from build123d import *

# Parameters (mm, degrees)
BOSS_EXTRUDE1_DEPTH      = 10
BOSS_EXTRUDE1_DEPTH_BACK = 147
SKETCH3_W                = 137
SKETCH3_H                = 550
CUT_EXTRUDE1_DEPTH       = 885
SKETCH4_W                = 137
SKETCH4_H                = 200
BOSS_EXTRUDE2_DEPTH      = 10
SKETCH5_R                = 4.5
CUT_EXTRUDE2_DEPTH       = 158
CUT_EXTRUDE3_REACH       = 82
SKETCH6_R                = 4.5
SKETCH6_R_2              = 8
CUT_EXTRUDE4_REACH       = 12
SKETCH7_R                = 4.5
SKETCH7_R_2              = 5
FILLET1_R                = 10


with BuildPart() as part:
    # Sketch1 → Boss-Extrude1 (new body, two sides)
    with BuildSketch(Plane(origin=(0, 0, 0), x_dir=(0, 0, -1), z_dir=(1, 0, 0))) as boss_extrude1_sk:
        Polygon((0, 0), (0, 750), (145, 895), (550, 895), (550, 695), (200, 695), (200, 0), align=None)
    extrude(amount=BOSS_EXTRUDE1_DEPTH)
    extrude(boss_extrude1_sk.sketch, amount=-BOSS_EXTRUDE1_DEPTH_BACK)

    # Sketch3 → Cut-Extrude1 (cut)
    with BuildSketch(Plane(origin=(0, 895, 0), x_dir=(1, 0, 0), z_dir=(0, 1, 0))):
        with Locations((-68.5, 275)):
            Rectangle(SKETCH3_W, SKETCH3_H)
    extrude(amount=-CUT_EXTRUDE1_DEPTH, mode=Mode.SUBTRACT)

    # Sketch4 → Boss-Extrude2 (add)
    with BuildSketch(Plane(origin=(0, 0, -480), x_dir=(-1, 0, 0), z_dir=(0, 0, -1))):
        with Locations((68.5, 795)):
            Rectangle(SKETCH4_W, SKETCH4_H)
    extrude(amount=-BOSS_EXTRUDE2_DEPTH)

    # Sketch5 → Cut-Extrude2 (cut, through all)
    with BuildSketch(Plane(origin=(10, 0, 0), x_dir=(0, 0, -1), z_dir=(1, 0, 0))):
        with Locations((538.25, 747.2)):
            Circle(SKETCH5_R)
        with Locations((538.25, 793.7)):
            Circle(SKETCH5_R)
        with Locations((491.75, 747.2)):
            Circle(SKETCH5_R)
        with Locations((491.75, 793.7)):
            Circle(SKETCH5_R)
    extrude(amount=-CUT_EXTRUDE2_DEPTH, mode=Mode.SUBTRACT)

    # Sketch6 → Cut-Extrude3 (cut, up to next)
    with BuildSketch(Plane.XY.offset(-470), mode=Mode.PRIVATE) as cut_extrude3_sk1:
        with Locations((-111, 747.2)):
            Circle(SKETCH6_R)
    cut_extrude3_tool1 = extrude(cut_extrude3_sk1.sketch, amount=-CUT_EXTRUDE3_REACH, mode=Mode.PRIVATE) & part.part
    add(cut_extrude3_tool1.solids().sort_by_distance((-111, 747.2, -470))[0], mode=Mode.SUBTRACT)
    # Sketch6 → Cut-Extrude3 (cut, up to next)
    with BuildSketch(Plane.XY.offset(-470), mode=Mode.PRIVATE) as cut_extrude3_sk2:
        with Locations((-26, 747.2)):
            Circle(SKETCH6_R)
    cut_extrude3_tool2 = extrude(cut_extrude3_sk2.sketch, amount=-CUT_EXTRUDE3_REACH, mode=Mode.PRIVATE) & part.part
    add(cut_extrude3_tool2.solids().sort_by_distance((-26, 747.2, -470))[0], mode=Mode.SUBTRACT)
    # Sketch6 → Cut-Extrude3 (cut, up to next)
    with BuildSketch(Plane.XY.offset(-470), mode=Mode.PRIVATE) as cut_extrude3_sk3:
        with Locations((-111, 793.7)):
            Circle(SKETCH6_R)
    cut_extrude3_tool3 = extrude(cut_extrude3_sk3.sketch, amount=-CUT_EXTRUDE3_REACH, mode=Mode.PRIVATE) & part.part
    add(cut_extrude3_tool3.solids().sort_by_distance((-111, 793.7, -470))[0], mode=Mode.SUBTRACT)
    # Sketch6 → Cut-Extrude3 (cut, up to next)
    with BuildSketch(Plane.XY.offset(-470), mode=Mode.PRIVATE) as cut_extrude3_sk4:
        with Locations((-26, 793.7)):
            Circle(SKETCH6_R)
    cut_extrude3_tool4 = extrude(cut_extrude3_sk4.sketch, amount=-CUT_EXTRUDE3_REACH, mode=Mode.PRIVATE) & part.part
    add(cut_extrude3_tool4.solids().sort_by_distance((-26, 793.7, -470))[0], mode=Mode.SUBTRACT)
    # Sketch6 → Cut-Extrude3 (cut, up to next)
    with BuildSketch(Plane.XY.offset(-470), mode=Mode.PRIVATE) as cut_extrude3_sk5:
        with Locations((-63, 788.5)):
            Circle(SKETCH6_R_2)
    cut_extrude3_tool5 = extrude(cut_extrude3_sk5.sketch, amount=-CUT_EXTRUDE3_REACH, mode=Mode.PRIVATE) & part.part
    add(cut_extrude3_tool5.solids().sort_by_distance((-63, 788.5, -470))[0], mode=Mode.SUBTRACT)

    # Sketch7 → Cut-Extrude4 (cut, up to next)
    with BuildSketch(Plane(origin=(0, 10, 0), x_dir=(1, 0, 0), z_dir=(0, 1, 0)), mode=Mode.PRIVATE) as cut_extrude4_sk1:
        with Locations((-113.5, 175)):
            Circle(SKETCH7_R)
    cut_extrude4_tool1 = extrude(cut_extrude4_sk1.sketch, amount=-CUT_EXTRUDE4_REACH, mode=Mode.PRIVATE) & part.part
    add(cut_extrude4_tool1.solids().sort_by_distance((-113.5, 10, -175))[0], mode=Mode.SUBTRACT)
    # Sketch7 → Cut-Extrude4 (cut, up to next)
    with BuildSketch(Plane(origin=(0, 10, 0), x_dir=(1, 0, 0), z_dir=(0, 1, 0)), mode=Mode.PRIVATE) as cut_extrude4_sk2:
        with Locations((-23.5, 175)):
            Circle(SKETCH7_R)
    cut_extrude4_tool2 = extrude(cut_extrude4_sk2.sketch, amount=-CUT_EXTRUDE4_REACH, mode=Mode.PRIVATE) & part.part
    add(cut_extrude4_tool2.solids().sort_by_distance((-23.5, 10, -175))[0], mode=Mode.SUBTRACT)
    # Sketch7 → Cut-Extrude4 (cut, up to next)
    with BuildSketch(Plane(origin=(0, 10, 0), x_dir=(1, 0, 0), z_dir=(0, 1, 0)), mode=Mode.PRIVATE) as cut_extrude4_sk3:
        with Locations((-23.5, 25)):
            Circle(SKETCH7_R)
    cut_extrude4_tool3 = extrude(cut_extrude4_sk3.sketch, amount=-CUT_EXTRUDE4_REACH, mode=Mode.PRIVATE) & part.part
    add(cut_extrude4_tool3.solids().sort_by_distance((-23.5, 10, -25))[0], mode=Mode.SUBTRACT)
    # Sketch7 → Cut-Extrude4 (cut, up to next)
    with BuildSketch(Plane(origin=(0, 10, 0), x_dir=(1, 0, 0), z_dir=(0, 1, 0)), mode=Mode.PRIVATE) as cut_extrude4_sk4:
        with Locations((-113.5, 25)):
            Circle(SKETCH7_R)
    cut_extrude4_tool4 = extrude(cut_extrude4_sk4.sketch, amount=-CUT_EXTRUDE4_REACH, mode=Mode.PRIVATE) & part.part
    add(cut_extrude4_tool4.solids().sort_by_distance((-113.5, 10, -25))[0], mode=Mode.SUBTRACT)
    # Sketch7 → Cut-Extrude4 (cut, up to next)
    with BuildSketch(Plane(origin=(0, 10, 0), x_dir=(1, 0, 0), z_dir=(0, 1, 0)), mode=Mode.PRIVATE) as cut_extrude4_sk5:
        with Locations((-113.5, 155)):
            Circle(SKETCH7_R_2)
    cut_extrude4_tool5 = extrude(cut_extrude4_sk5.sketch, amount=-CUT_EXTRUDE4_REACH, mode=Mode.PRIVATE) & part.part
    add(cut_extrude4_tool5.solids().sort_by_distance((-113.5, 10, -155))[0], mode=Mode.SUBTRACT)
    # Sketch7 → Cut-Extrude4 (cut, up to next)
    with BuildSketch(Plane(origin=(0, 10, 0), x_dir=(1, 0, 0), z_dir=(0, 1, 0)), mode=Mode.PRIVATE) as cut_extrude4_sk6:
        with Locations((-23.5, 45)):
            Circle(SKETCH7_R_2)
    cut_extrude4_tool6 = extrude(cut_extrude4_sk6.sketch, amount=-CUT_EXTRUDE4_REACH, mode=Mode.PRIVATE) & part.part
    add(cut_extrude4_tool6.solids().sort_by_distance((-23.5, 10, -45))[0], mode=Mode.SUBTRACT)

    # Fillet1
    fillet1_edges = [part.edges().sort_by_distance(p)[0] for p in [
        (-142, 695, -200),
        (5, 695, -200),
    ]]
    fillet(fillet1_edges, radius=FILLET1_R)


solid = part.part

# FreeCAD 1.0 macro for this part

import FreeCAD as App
import Part
import Sketcher
from FreeCAD import Vector
Q = App.Units.Quantity


def edges_at(feature, points):
    """Names of the edges that pass closest to the given points."""
    edges = feature.Shape.Edges
    near = lambda p: min(range(len(edges)), key=lambda i: edges[i].distToShape(Part.Vertex(*p))[0])
    return sorted({f"Edge{near(p) + 1}" for p in points})

doc = App.newDocument("Part")
body = doc.addObject("PartDesign::Body", "Body")

# Sketch on YZ plane
sketch1 = body.newObject("Sketcher::SketchObject", "Sketch")
sketch1.AttachmentSupport = (doc.getObject("YZ_Plane"), [""])
sketch1.MapMode = "FlatFace"
sketch1.addGeometry(Part.LineSegment(Vector(750, 0, 0), Vector(0, 0, 0)), False)
sketch1.addGeometry(Part.LineSegment(Vector(0, 0, 0), Vector(0, -200, 0)), False)
sketch1.addGeometry(Part.LineSegment(Vector(0, -200, 0), Vector(695, -200, 0)), False)
sketch1.addGeometry(Part.LineSegment(Vector(695, -200, 0), Vector(695, -550, 0)), False)
sketch1.addGeometry(Part.LineSegment(Vector(695, -550, 0), Vector(895, -550, 0)), False)
sketch1.addGeometry(Part.LineSegment(Vector(895, -550, 0), Vector(895, -145, 0)), False)
sketch1.addGeometry(Part.LineSegment(Vector(895, -145, 0), Vector(750, 0, 0)), False)
sketch1.addConstraint(Sketcher.Constraint("Coincident", 0, 2, 1, 1))
sketch1.addConstraint(Sketcher.Constraint("Coincident", 1, 2, 2, 1))
sketch1.addConstraint(Sketcher.Constraint("Coincident", 2, 2, 3, 1))
sketch1.addConstraint(Sketcher.Constraint("Coincident", 3, 2, 4, 1))
sketch1.addConstraint(Sketcher.Constraint("Coincident", 4, 2, 5, 1))
sketch1.addConstraint(Sketcher.Constraint("Coincident", 5, 2, 6, 1))
sketch1.addConstraint(Sketcher.Constraint("Coincident", 6, 2, 0, 1))
sketch1.addConstraint(Sketcher.Constraint("Horizontal", 0))
sketch1.addConstraint(Sketcher.Constraint("Vertical", 1))
sketch1.addConstraint(Sketcher.Constraint("Horizontal", 2))
sketch1.addConstraint(Sketcher.Constraint("Vertical", 3))
sketch1.addConstraint(Sketcher.Constraint("Horizontal", 4))
sketch1.addConstraint(Sketcher.Constraint("Vertical", 5))
sketch1.addConstraint(Sketcher.Constraint("Coincident", 0, 2, -1, 1))
sketch1.addConstraint(Sketcher.Constraint("Equal", 4, 1))
sketch1.addConstraint(Sketcher.Constraint("DistanceX", 0, 2, 0, 1, Q("750 mm")))
sketch1.addConstraint(Sketcher.Constraint("DistanceX", 2, 1, 2, 2, Q("695 mm")))
sketch1.addConstraint(Sketcher.Constraint("DistanceX", 4, 1, 4, 2, Q("200 mm")))
sketch1.addConstraint(Sketcher.Constraint("DistanceY", 3, 2, 3, 1, Q("350 mm")))
sketch1.addConstraint(Sketcher.Constraint("DistanceY", 5, 1, 5, 2, Q("405 mm")))
pad1 = body.newObject("PartDesign::Pad", "Pad")
pad1.Profile = sketch1
pad1.Type = "TwoLengths"
pad1.Length = 10
pad1.Length2 = 147

# Sketch on XZ plane
sketch2 = body.newObject("Sketcher::SketchObject", "Sketch001")
sketch2.AttachmentSupport = (doc.getObject("XZ_Plane"), [""])
sketch2.MapMode = "FlatFace"
sketch2.AttachmentOffset = App.Placement(Vector(0, 0, -895), App.Rotation())
sketch2.addGeometry(Part.LineSegment(Vector(-137, -550, 0), Vector(-137, 0, 0)), False)
sketch2.addGeometry(Part.LineSegment(Vector(-137, 0, 0), Vector(0, 0, 0)), False)
sketch2.addGeometry(Part.LineSegment(Vector(0, 0, 0), Vector(0, -550, 0)), False)
sketch2.addGeometry(Part.LineSegment(Vector(0, -550, 0), Vector(-137, -550, 0)), False)
sketch2.addConstraint(Sketcher.Constraint("Coincident", 0, 2, 1, 1))
sketch2.addConstraint(Sketcher.Constraint("Coincident", 1, 2, 2, 1))
sketch2.addConstraint(Sketcher.Constraint("Coincident", 2, 2, 3, 1))
sketch2.addConstraint(Sketcher.Constraint("Coincident", 3, 2, 0, 1))
sketch2.addConstraint(Sketcher.Constraint("Vertical", 0))
sketch2.addConstraint(Sketcher.Constraint("Horizontal", 1))
sketch2.addConstraint(Sketcher.Constraint("Vertical", 2))
sketch2.addConstraint(Sketcher.Constraint("Horizontal", 3))
sketch2.addConstraint(Sketcher.Constraint("Coincident", 1, 2, -1, 1))
sketch2.addConstraint(Sketcher.Constraint("DistanceX", 1, 1, 1, 2, Q("137 mm")))
sketch2.addConstraint(Sketcher.Constraint("DistanceY", 0, 1, 0, 2, Q("550 mm")))
pocket1 = body.newObject("PartDesign::Pocket", "Pocket")
pocket1.Profile = sketch2
pocket1.Length = 885
pocket1.Reversed = True

# Sketch on XY plane
sketch3 = body.newObject("Sketcher::SketchObject", "Sketch002")
sketch3.AttachmentSupport = (doc.getObject("XY_Plane"), [""])
sketch3.MapMode = "FlatFace"
sketch3.AttachmentOffset = App.Placement(Vector(0, 0, -480), App.Rotation())
sketch3.addGeometry(Part.LineSegment(Vector(0, 895, 0), Vector(0, 695, 0)), False)
sketch3.addGeometry(Part.LineSegment(Vector(0, 695, 0), Vector(-137, 695, 0)), False)
sketch3.addGeometry(Part.LineSegment(Vector(-137, 695, 0), Vector(-137, 895, 0)), False)
sketch3.addGeometry(Part.LineSegment(Vector(-137, 895, 0), Vector(0, 895, 0)), False)
sketch3.addConstraint(Sketcher.Constraint("Coincident", 0, 2, 1, 1))
sketch3.addConstraint(Sketcher.Constraint("Coincident", 1, 2, 2, 1))
sketch3.addConstraint(Sketcher.Constraint("Coincident", 2, 2, 3, 1))
sketch3.addConstraint(Sketcher.Constraint("Coincident", 3, 2, 0, 1))
sketch3.addConstraint(Sketcher.Constraint("Vertical", 0))
sketch3.addConstraint(Sketcher.Constraint("Horizontal", 1))
sketch3.addConstraint(Sketcher.Constraint("Vertical", 2))
sketch3.addConstraint(Sketcher.Constraint("Horizontal", 3))
sketch3.addConstraint(Sketcher.Constraint("PointOnObject", 0, 2, -2))
sketch3.addConstraint(Sketcher.Constraint("DistanceX", 1, 2, 1, 1, Q("137 mm")))
sketch3.addConstraint(Sketcher.Constraint("DistanceY", 0, 2, 0, 1, Q("200 mm")))
sketch3.addConstraint(Sketcher.Constraint("DistanceY", -1, 1, 0, 2, Q("695 mm")))
pad2 = body.newObject("PartDesign::Pad", "Pad001")
pad2.Profile = sketch3
pad2.Length = 10

# Sketch on YZ plane
sketch4 = body.newObject("Sketcher::SketchObject", "Sketch003")
sketch4.AttachmentSupport = (doc.getObject("YZ_Plane"), [""])
sketch4.MapMode = "FlatFace"
sketch4.AttachmentOffset = App.Placement(Vector(0, 0, 10), App.Rotation())
sketch4.addGeometry(Part.Circle(Vector(747.2, -538.2, 0), Vector(0, 0, 1), 4.5), False)
sketch4.addGeometry(Part.Circle(Vector(793.7, -538.2, 0), Vector(0, 0, 1), 4.5), False)
sketch4.addGeometry(Part.Circle(Vector(747.2, -491.8, 0), Vector(0, 0, 1), 4.5), False)
sketch4.addGeometry(Part.Circle(Vector(793.7, -491.8, 0), Vector(0, 0, 1), 4.5), False)
sketch4.addConstraint(Sketcher.Constraint("Equal", 0, 1))
sketch4.addConstraint(Sketcher.Constraint("Equal", 1, 2))
sketch4.addConstraint(Sketcher.Constraint("Equal", 2, 3))
sketch4.addConstraint(Sketcher.Constraint("Horizontal", 0, 3, 1, 3))
sketch4.addConstraint(Sketcher.Constraint("Horizontal", 2, 3, 3, 3))
sketch4.addConstraint(Sketcher.Constraint("Vertical", 0, 3, 2, 3))
sketch4.addConstraint(Sketcher.Constraint("Vertical", 1, 3, 3, 3))
sketch4.addConstraint(Sketcher.Constraint("Diameter", 0, Q("9 mm")))
sketch4.addConstraint(Sketcher.Constraint("DistanceX", -1, 1, 0, 3, Q("747.2 mm")))
sketch4.addConstraint(Sketcher.Constraint("DistanceX", -1, 1, 1, 3, Q("793.7 mm")))
sketch4.addConstraint(Sketcher.Constraint("DistanceY", 0, 3, 2, 3, Q("46.5 mm")))
sketch4.addConstraint(Sketcher.Constraint("DistanceY", 0, 3, -1, 1, Q("538.25 mm")))
pocket2 = body.newObject("PartDesign::Pocket", "Pocket001")
pocket2.Profile = sketch4
pocket2.Type = "ThroughAll"

# Sketch on XY plane
sketch5 = body.newObject("Sketcher::SketchObject", "Sketch004")
sketch5.AttachmentSupport = (doc.getObject("XY_Plane"), [""])
sketch5.MapMode = "FlatFace"
sketch5.AttachmentOffset = App.Placement(Vector(0, 0, -470), App.Rotation())
sketch5.addGeometry(Part.Circle(Vector(-111, 747.2, 0), Vector(0, 0, 1), 4.5), False)
sketch5.addConstraint(Sketcher.Constraint("Diameter", 0, Q("9 mm")))
sketch5.addConstraint(Sketcher.Constraint("DistanceX", 0, 3, -1, 1, Q("111 mm")))
sketch5.addConstraint(Sketcher.Constraint("DistanceY", -1, 1, 0, 3, Q("747.2 mm")))
pocket3 = body.newObject("PartDesign::Pocket", "Pocket002")
pocket3.Profile = sketch5
pocket3.Type = "UpToFirst"

# Sketch on XY plane
sketch6 = body.newObject("Sketcher::SketchObject", "Sketch005")
sketch6.AttachmentSupport = (doc.getObject("XY_Plane"), [""])
sketch6.MapMode = "FlatFace"
sketch6.AttachmentOffset = App.Placement(Vector(0, 0, -470), App.Rotation())
sketch6.addGeometry(Part.Circle(Vector(-26, 747.2, 0), Vector(0, 0, 1), 4.5), False)
sketch6.addConstraint(Sketcher.Constraint("Diameter", 0, Q("9 mm")))
sketch6.addConstraint(Sketcher.Constraint("DistanceX", 0, 3, -1, 1, Q("26 mm")))
sketch6.addConstraint(Sketcher.Constraint("DistanceY", -1, 1, 0, 3, Q("747.2 mm")))
pocket4 = body.newObject("PartDesign::Pocket", "Pocket003")
pocket4.Profile = sketch6
pocket4.Type = "UpToFirst"

# Sketch on XY plane
sketch7 = body.newObject("Sketcher::SketchObject", "Sketch006")
sketch7.AttachmentSupport = (doc.getObject("XY_Plane"), [""])
sketch7.MapMode = "FlatFace"
sketch7.AttachmentOffset = App.Placement(Vector(0, 0, -470), App.Rotation())
sketch7.addGeometry(Part.Circle(Vector(-111, 793.7, 0), Vector(0, 0, 1), 4.5), False)
sketch7.addConstraint(Sketcher.Constraint("Diameter", 0, Q("9 mm")))
sketch7.addConstraint(Sketcher.Constraint("DistanceX", 0, 3, -1, 1, Q("111 mm")))
sketch7.addConstraint(Sketcher.Constraint("DistanceY", -1, 1, 0, 3, Q("793.7 mm")))
pocket5 = body.newObject("PartDesign::Pocket", "Pocket004")
pocket5.Profile = sketch7
pocket5.Type = "UpToFirst"

# Sketch on XY plane
sketch8 = body.newObject("Sketcher::SketchObject", "Sketch007")
sketch8.AttachmentSupport = (doc.getObject("XY_Plane"), [""])
sketch8.MapMode = "FlatFace"
sketch8.AttachmentOffset = App.Placement(Vector(0, 0, -470), App.Rotation())
sketch8.addGeometry(Part.Circle(Vector(-26, 793.7, 0), Vector(0, 0, 1), 4.5), False)
sketch8.addConstraint(Sketcher.Constraint("Diameter", 0, Q("9 mm")))
sketch8.addConstraint(Sketcher.Constraint("DistanceX", 0, 3, -1, 1, Q("26 mm")))
sketch8.addConstraint(Sketcher.Constraint("DistanceY", -1, 1, 0, 3, Q("793.7 mm")))
pocket6 = body.newObject("PartDesign::Pocket", "Pocket005")
pocket6.Profile = sketch8
pocket6.Type = "UpToFirst"

# Sketch on XY plane
sketch9 = body.newObject("Sketcher::SketchObject", "Sketch008")
sketch9.AttachmentSupport = (doc.getObject("XY_Plane"), [""])
sketch9.MapMode = "FlatFace"
sketch9.AttachmentOffset = App.Placement(Vector(0, 0, -470), App.Rotation())
sketch9.addGeometry(Part.Circle(Vector(-63, 788, 0), Vector(0, 0, 1), 8), False)
sketch9.addConstraint(Sketcher.Constraint("Diameter", 0, Q("16 mm")))
sketch9.addConstraint(Sketcher.Constraint("DistanceX", 0, 3, -1, 1, Q("63 mm")))
sketch9.addConstraint(Sketcher.Constraint("DistanceY", -1, 1, 0, 3, Q("788.5 mm")))
pocket7 = body.newObject("PartDesign::Pocket", "Pocket006")
pocket7.Profile = sketch9
pocket7.Type = "UpToFirst"

# Sketch on XZ plane
sketch10 = body.newObject("Sketcher::SketchObject", "Sketch009")
sketch10.AttachmentSupport = (doc.getObject("XZ_Plane"), [""])
sketch10.MapMode = "FlatFace"
sketch10.AttachmentOffset = App.Placement(Vector(0, 0, -10), App.Rotation())
sketch10.addGeometry(Part.Circle(Vector(-113.5, -175, 0), Vector(0, 0, 1), 4.5), False)
sketch10.addConstraint(Sketcher.Constraint("Diameter", 0, Q("9 mm")))
sketch10.addConstraint(Sketcher.Constraint("DistanceY", 0, 3, -1, 1, Q("175 mm")))
sketch10.addConstraint(Sketcher.Constraint("DistanceX", 0, 3, -1, 1, Q("113.5 mm")))
pocket8 = body.newObject("PartDesign::Pocket", "Pocket007")
pocket8.Profile = sketch10
pocket8.Type = "UpToFirst"
pocket8.Reversed = True

# Sketch on XZ plane
sketch11 = body.newObject("Sketcher::SketchObject", "Sketch010")
sketch11.AttachmentSupport = (doc.getObject("XZ_Plane"), [""])
sketch11.MapMode = "FlatFace"
sketch11.AttachmentOffset = App.Placement(Vector(0, 0, -10), App.Rotation())
sketch11.addGeometry(Part.Circle(Vector(-23.5, -175, 0), Vector(0, 0, 1), 4.5), False)
sketch11.addConstraint(Sketcher.Constraint("Diameter", 0, Q("9 mm")))
sketch11.addConstraint(Sketcher.Constraint("DistanceY", 0, 3, -1, 1, Q("175 mm")))
sketch11.addConstraint(Sketcher.Constraint("DistanceX", 0, 3, -1, 1, Q("23.5 mm")))
pocket9 = body.newObject("PartDesign::Pocket", "Pocket008")
pocket9.Profile = sketch11
pocket9.Type = "UpToFirst"
pocket9.Reversed = True

# Sketch on XZ plane
sketch12 = body.newObject("Sketcher::SketchObject", "Sketch011")
sketch12.AttachmentSupport = (doc.getObject("XZ_Plane"), [""])
sketch12.MapMode = "FlatFace"
sketch12.AttachmentOffset = App.Placement(Vector(0, 0, -10), App.Rotation())
sketch12.addGeometry(Part.Circle(Vector(-23.5, -25, 0), Vector(0, 0, 1), 4.5), False)
sketch12.addConstraint(Sketcher.Constraint("Diameter", 0, Q("9 mm")))
sketch12.addConstraint(Sketcher.Constraint("DistanceY", 0, 3, -1, 1, Q("25 mm")))
sketch12.addConstraint(Sketcher.Constraint("DistanceX", 0, 3, -1, 1, Q("23.5 mm")))
pocket10 = body.newObject("PartDesign::Pocket", "Pocket009")
pocket10.Profile = sketch12
pocket10.Type = "UpToFirst"
pocket10.Reversed = True

# Sketch on XZ plane
sketch13 = body.newObject("Sketcher::SketchObject", "Sketch012")
sketch13.AttachmentSupport = (doc.getObject("XZ_Plane"), [""])
sketch13.MapMode = "FlatFace"
sketch13.AttachmentOffset = App.Placement(Vector(0, 0, -10), App.Rotation())
sketch13.addGeometry(Part.Circle(Vector(-113.5, -25, 0), Vector(0, 0, 1), 4.5), False)
sketch13.addConstraint(Sketcher.Constraint("Diameter", 0, Q("9 mm")))
sketch13.addConstraint(Sketcher.Constraint("DistanceY", 0, 3, -1, 1, Q("25 mm")))
sketch13.addConstraint(Sketcher.Constraint("DistanceX", 0, 3, -1, 1, Q("113.5 mm")))
pocket11 = body.newObject("PartDesign::Pocket", "Pocket010")
pocket11.Profile = sketch13
pocket11.Type = "UpToFirst"
pocket11.Reversed = True

# Sketch on XZ plane
sketch14 = body.newObject("Sketcher::SketchObject", "Sketch013")
sketch14.AttachmentSupport = (doc.getObject("XZ_Plane"), [""])
sketch14.MapMode = "FlatFace"
sketch14.AttachmentOffset = App.Placement(Vector(0, 0, -10), App.Rotation())
sketch14.addGeometry(Part.Circle(Vector(-114, -155, 0), Vector(0, 0, 1), 5), False)
sketch14.addConstraint(Sketcher.Constraint("Diameter", 0, Q("10 mm")))
sketch14.addConstraint(Sketcher.Constraint("DistanceY", 0, 3, -1, 1, Q("155 mm")))
sketch14.addConstraint(Sketcher.Constraint("DistanceX", 0, 3, -1, 1, Q("113.5 mm")))
pocket12 = body.newObject("PartDesign::Pocket", "Pocket011")
pocket12.Profile = sketch14
pocket12.Type = "UpToFirst"
pocket12.Reversed = True

# Sketch on XZ plane
sketch15 = body.newObject("Sketcher::SketchObject", "Sketch014")
sketch15.AttachmentSupport = (doc.getObject("XZ_Plane"), [""])
sketch15.MapMode = "FlatFace"
sketch15.AttachmentOffset = App.Placement(Vector(0, 0, -10), App.Rotation())
sketch15.addGeometry(Part.Circle(Vector(-24, -45, 0), Vector(0, 0, 1), 5), False)
sketch15.addConstraint(Sketcher.Constraint("Diameter", 0, Q("10 mm")))
sketch15.addConstraint(Sketcher.Constraint("DistanceY", 0, 3, -1, 1, Q("45 mm")))
sketch15.addConstraint(Sketcher.Constraint("DistanceX", 0, 3, -1, 1, Q("23.5 mm")))
pocket13 = body.newObject("PartDesign::Pocket", "Pocket012")
pocket13.Profile = sketch15
pocket13.Type = "UpToFirst"
pocket13.Reversed = True
doc.recompute()

fillet = body.newObject("PartDesign::Fillet", "Fillet")
fillet.Base = (pocket13, edges_at(pocket13, [(-142, 695, -200), (5, 695, -200)]))
fillet.Radius = 10

doc.recompute()
